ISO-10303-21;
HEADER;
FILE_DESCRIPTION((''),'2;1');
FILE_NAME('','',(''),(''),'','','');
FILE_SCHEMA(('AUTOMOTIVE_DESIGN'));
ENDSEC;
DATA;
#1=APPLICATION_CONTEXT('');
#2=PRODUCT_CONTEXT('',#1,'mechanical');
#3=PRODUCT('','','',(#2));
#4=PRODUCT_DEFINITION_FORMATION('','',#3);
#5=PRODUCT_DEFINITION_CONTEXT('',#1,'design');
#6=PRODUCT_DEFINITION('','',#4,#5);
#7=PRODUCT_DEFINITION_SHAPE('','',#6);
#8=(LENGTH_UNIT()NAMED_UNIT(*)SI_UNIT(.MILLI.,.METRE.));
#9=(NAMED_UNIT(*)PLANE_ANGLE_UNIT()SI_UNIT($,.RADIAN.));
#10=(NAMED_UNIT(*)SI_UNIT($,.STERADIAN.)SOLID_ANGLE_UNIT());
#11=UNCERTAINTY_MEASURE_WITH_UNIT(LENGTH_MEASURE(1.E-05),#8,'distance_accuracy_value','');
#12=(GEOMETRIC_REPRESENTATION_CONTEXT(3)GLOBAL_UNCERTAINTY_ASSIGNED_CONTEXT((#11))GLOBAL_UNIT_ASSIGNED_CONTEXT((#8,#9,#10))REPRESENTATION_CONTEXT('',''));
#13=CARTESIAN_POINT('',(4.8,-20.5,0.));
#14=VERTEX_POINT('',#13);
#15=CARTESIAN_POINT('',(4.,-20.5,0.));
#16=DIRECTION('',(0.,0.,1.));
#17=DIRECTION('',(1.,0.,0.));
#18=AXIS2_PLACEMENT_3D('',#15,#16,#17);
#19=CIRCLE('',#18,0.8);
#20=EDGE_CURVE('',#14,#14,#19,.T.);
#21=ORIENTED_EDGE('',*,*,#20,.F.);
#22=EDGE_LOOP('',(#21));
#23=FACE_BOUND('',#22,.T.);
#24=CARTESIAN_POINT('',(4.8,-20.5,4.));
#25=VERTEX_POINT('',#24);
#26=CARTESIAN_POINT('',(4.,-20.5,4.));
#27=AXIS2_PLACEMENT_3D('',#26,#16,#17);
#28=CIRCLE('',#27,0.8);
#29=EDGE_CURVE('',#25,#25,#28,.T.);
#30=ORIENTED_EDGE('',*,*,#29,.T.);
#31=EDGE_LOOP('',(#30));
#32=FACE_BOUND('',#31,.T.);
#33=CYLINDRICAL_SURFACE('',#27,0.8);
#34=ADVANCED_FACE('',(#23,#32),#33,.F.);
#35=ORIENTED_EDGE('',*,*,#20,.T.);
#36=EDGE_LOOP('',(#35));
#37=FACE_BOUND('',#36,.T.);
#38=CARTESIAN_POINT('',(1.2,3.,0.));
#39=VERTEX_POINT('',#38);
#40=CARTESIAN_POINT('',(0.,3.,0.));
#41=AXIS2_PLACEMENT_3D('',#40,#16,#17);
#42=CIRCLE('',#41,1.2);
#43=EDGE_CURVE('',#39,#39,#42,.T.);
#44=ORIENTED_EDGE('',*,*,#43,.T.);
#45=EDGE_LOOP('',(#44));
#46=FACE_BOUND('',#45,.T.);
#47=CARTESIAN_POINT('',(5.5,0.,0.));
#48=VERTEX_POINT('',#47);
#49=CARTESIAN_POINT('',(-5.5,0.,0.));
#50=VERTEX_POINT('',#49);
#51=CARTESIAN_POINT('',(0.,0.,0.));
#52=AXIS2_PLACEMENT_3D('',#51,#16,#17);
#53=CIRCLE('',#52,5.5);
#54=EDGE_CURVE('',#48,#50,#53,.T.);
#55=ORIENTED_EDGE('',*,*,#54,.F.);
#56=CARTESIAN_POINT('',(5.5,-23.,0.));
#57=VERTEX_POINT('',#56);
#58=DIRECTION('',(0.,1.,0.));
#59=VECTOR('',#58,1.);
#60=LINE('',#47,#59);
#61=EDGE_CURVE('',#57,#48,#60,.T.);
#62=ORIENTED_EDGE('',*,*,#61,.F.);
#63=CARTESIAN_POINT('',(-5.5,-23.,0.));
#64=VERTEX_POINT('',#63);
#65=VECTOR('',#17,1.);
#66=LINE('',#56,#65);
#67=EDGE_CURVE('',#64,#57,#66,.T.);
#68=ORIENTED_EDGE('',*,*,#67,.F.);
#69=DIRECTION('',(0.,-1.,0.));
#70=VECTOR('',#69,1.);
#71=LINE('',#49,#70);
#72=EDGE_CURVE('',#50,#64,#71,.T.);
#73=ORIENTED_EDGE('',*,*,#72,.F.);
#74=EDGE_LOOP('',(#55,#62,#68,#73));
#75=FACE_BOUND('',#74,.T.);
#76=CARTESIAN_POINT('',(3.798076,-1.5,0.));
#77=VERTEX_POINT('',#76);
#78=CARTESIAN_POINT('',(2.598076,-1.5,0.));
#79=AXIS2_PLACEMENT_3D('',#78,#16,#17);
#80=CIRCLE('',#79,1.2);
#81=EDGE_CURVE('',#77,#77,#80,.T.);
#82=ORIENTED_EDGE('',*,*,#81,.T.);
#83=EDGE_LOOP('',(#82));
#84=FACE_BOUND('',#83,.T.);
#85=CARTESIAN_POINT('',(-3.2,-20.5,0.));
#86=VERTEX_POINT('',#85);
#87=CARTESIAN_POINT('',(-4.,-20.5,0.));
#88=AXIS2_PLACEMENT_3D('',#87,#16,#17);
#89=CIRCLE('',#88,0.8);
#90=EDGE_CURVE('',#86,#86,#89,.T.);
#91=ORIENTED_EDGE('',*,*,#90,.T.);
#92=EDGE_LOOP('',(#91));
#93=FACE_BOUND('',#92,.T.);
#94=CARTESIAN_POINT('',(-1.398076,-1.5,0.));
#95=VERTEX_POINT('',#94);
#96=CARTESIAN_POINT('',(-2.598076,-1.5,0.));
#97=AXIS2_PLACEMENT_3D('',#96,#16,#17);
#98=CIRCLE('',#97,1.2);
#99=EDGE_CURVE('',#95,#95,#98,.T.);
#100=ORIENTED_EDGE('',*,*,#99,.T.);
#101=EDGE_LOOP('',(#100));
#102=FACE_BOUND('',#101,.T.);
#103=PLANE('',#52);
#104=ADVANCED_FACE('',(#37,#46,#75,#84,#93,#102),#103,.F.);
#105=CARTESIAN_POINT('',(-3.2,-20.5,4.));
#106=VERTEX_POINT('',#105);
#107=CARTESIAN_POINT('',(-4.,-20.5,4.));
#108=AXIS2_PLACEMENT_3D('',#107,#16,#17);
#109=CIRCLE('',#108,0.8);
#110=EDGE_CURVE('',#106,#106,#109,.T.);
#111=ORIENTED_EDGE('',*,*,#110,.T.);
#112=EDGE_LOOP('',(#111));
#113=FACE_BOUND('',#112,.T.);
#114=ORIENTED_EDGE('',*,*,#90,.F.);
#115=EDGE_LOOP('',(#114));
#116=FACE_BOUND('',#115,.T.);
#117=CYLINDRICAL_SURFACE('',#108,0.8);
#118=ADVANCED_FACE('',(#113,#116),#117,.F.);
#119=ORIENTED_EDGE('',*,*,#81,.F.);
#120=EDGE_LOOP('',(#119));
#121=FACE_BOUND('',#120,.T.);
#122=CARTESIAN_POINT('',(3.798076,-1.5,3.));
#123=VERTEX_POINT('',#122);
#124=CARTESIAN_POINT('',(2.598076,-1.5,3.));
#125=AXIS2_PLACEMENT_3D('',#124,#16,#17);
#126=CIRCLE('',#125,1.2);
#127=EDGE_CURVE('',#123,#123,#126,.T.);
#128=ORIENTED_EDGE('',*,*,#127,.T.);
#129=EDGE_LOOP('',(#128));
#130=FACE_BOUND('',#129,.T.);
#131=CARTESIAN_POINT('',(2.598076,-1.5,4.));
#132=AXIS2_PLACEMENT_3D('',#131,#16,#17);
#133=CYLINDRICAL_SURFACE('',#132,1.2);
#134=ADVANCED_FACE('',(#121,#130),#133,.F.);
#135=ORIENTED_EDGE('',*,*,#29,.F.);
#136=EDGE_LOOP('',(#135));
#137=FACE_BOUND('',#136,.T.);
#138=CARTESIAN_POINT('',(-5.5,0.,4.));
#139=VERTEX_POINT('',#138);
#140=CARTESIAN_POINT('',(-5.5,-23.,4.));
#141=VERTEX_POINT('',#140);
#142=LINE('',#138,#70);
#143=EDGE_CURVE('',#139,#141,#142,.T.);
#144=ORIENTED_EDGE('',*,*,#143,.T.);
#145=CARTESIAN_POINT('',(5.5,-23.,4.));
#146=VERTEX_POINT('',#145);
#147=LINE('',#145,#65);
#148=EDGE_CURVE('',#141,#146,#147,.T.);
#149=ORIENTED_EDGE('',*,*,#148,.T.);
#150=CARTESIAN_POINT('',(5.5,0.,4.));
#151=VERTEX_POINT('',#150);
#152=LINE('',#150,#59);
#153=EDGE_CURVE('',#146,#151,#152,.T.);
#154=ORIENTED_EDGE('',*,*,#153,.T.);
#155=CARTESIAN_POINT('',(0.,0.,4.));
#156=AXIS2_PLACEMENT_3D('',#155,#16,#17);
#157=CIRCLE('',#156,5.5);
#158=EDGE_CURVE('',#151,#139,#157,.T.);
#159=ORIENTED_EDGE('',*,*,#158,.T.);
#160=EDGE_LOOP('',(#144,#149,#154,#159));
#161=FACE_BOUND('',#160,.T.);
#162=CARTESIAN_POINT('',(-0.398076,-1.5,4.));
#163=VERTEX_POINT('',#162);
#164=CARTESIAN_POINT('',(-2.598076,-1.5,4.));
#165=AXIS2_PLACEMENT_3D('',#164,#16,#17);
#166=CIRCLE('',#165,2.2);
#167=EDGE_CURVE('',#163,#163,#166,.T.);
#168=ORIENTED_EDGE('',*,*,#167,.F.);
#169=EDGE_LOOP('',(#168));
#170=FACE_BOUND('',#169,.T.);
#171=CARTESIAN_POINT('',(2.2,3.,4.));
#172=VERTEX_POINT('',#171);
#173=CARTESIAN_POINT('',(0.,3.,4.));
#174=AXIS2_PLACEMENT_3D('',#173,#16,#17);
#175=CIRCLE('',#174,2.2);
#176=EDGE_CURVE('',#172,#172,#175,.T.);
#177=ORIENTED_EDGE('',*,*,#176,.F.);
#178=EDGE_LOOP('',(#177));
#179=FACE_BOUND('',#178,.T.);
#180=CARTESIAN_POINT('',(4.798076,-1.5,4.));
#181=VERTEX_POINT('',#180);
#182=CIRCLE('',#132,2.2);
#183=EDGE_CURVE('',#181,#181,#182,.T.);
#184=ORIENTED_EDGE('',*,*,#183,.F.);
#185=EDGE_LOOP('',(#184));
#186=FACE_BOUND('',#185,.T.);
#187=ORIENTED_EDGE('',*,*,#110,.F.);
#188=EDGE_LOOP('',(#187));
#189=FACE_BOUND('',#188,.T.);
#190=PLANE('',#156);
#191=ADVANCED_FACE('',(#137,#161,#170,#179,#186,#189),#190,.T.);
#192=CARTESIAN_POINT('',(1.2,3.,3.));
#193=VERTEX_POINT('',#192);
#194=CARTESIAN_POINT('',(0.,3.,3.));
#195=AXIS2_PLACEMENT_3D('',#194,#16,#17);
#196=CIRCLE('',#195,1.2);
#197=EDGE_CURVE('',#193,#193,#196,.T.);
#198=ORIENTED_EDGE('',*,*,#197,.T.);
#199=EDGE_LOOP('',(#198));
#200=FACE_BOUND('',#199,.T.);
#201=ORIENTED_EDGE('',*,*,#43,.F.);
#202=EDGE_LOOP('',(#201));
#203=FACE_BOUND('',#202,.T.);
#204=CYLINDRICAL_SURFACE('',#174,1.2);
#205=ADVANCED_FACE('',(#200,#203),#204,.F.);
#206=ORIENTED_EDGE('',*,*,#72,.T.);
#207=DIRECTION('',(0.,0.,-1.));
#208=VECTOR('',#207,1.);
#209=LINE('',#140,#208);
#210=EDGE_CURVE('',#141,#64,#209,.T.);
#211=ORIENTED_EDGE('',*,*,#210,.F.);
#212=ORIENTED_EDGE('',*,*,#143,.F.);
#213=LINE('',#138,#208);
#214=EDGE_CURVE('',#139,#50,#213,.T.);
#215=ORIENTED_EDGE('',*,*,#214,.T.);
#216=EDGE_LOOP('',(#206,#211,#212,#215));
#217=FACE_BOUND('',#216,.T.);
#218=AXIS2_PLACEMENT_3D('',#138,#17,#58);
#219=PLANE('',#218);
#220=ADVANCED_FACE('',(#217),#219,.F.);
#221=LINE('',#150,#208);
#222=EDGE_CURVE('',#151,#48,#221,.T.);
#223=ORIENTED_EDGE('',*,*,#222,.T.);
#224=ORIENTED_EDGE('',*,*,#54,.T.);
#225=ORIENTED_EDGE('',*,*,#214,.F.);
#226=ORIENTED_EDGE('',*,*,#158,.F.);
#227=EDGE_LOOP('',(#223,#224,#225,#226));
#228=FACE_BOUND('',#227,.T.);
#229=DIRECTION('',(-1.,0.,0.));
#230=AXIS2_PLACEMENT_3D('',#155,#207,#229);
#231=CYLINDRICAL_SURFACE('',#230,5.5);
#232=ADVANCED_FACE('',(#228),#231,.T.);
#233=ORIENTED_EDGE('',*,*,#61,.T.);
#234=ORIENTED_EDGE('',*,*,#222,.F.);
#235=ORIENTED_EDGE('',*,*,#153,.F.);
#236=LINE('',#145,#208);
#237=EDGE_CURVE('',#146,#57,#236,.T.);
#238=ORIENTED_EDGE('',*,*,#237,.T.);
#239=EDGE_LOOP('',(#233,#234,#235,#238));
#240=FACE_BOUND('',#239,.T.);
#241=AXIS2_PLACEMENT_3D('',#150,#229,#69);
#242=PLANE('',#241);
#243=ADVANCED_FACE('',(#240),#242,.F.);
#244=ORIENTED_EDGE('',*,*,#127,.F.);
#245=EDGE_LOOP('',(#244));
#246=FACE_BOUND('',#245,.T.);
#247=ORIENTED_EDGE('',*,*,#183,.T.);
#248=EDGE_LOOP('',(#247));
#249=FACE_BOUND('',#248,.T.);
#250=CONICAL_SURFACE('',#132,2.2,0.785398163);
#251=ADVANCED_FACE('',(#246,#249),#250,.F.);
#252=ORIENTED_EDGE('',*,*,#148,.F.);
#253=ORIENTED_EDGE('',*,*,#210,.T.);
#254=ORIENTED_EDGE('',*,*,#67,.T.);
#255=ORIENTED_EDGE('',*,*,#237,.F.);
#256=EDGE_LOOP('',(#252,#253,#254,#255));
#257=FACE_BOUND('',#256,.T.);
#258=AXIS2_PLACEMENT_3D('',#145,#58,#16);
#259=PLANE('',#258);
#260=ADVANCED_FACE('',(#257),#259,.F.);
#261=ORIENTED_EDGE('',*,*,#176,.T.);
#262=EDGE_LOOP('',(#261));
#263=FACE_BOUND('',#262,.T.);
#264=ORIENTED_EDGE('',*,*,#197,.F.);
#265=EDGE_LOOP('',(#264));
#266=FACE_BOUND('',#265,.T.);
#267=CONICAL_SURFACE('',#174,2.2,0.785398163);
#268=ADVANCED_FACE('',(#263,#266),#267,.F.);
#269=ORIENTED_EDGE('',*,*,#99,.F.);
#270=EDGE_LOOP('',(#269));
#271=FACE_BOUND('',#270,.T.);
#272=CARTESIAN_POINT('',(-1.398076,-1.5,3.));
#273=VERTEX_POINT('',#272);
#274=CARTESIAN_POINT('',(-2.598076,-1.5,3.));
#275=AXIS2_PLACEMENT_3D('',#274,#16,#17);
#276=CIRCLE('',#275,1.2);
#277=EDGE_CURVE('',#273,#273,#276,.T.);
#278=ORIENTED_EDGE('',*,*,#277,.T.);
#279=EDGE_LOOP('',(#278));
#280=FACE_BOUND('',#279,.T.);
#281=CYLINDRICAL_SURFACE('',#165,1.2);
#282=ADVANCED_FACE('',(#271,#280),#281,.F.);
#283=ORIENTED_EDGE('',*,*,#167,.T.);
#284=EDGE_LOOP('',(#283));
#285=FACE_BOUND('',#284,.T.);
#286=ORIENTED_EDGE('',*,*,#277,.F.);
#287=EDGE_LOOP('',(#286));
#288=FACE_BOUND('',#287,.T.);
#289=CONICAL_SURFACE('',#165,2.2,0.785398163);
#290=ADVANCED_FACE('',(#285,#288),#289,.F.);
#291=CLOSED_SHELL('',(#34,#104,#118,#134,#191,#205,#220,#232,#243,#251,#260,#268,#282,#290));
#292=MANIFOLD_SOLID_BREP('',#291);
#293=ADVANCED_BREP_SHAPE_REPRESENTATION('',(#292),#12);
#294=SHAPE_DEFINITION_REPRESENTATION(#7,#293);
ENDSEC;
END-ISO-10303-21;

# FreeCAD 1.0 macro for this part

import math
import FreeCAD as App
import Part
import Sketcher

doc = App.newDocument("Part")
body = doc.addObject("PartDesign::Body", "Body")

sketch1 = doc.addObject("Sketcher::SketchObject", "Sketch")
body.addObject(sketch1)
sketch1.AttachmentSupport = (doc.XY_Plane, [""])
sketch1.MapMode = "FlatFace"
sketch1.addGeometry([
    Part.LineSegment(App.Vector(-6, 0, 0), App.Vector(-6, -23, 0)),
    Part.LineSegment(App.Vector(-6, -23, 0), App.Vector(6, -23, 0)),
    Part.LineSegment(App.Vector(6, -23, 0), App.Vector(6, 0, 0)),
    Part.ArcOfCircle(Part.Circle(App.Vector(0, 0, 0), App.Vector(0, 0, 1), 6), math.radians(0), math.radians(180)),
], False)
sketch1.addConstraint([
    Sketcher.Constraint("Coincident", 0, 2, 1, 1),
    Sketcher.Constraint("Coincident", 1, 2, 2, 1),
    Sketcher.Constraint("Tangent", 2, 2, 3, 1),
    Sketcher.Constraint("Tangent", 3, 2, 0, 1),
    Sketcher.Constraint("Vertical", 0),
    Sketcher.Constraint("Horizontal", 1),
    Sketcher.Constraint("Vertical", 2),
    Sketcher.Constraint("Coincident", 3, 3, -1, 1),
    Sketcher.Constraint("Radius", 3, 5.5),
    Sketcher.Constraint("DistanceY", 0, 2, 0, 1, 23.0),
])
pad1 = doc.addObject("PartDesign::Pad", "Pad")
body.addObject(pad1)
pad1.Profile = sketch1
pad1.Length = 4

sketch2 = doc.addObject("Sketcher::SketchObject", "Sketch001")
body.addObject(sketch2)
sketch2.AttachmentSupport = (doc.XY_Plane, [""])
sketch2.MapMode = "FlatFace"
sketch2.AttachmentOffset = App.Placement(App.Vector(0, 0, 4), App.Rotation())
sketch2.addGeometry([
    Part.Circle(App.Vector(-4, -20.5, 0), App.Vector(0, 0, 1), 0.8),
    Part.Circle(App.Vector(4, -20.5, 0), App.Vector(0, 0, 1), 0.8),
], False)
sketch2.addConstraint([
    Sketcher.Constraint("Equal", 0, 1),
    Sketcher.Constraint("Symmetric", 0, 3, 1, 3, -2),
    Sketcher.Constraint("Diameter", 0, 1.6),
    Sketcher.Constraint("DistanceX", 0, 3, -1, 1, 4.0),
    Sketcher.Constraint("DistanceY", 0, 3, -1, 1, 20.5),
])
doc.recompute()
hole = doc.addObject("PartDesign::Hole", "Hole")
body.addObject(hole)
hole.Profile = sketch2
hole.ThreadType = "None"
hole.Diameter = 1.6
hole.DepthType = "ThroughAll"

sketch3 = doc.addObject("Sketcher::SketchObject", "Sketch002")
body.addObject(sketch3)
sketch3.AttachmentSupport = (doc.XY_Plane, [""])
sketch3.MapMode = "FlatFace"
sketch3.AttachmentOffset = App.Placement(App.Vector(0, 0, 4), App.Rotation())
sketch3.addGeometry(Part.Circle(App.Vector(0, 3, 0), App.Vector(0, 0, 1), 1.2), False)
sketch3.addConstraint([
    Sketcher.Constraint("PointOnObject", 0, 3, -2),
    Sketcher.Constraint("Diameter", 0, 2.4),
    Sketcher.Constraint("DistanceY", -1, 1, 0, 3, 3.0),
])
doc.recompute()
hole2 = doc.addObject("PartDesign::Hole", "Hole001")
body.addObject(hole2)
hole2.Profile = sketch3
hole2.ThreadType = "None"
hole2.Diameter = 2.4
hole2.DepthType = "ThroughAll"
hole2.HoleCutType = "Countersink"
hole2.HoleCutDiameter = 4.4
hole2.HoleCutCountersinkAngle = 90
doc.recompute()

polarpattern = doc.addObject("PartDesign::PolarPattern", "PolarPattern")
body.addObject(polarpattern)
polarpattern.Originals = [hole2]
polarpattern.Axis = (doc.Z_Axis, [""])
polarpattern.Angle = 360
polarpattern.Occurrences = 3
body.Tip = polarpattern

doc.recompute()
